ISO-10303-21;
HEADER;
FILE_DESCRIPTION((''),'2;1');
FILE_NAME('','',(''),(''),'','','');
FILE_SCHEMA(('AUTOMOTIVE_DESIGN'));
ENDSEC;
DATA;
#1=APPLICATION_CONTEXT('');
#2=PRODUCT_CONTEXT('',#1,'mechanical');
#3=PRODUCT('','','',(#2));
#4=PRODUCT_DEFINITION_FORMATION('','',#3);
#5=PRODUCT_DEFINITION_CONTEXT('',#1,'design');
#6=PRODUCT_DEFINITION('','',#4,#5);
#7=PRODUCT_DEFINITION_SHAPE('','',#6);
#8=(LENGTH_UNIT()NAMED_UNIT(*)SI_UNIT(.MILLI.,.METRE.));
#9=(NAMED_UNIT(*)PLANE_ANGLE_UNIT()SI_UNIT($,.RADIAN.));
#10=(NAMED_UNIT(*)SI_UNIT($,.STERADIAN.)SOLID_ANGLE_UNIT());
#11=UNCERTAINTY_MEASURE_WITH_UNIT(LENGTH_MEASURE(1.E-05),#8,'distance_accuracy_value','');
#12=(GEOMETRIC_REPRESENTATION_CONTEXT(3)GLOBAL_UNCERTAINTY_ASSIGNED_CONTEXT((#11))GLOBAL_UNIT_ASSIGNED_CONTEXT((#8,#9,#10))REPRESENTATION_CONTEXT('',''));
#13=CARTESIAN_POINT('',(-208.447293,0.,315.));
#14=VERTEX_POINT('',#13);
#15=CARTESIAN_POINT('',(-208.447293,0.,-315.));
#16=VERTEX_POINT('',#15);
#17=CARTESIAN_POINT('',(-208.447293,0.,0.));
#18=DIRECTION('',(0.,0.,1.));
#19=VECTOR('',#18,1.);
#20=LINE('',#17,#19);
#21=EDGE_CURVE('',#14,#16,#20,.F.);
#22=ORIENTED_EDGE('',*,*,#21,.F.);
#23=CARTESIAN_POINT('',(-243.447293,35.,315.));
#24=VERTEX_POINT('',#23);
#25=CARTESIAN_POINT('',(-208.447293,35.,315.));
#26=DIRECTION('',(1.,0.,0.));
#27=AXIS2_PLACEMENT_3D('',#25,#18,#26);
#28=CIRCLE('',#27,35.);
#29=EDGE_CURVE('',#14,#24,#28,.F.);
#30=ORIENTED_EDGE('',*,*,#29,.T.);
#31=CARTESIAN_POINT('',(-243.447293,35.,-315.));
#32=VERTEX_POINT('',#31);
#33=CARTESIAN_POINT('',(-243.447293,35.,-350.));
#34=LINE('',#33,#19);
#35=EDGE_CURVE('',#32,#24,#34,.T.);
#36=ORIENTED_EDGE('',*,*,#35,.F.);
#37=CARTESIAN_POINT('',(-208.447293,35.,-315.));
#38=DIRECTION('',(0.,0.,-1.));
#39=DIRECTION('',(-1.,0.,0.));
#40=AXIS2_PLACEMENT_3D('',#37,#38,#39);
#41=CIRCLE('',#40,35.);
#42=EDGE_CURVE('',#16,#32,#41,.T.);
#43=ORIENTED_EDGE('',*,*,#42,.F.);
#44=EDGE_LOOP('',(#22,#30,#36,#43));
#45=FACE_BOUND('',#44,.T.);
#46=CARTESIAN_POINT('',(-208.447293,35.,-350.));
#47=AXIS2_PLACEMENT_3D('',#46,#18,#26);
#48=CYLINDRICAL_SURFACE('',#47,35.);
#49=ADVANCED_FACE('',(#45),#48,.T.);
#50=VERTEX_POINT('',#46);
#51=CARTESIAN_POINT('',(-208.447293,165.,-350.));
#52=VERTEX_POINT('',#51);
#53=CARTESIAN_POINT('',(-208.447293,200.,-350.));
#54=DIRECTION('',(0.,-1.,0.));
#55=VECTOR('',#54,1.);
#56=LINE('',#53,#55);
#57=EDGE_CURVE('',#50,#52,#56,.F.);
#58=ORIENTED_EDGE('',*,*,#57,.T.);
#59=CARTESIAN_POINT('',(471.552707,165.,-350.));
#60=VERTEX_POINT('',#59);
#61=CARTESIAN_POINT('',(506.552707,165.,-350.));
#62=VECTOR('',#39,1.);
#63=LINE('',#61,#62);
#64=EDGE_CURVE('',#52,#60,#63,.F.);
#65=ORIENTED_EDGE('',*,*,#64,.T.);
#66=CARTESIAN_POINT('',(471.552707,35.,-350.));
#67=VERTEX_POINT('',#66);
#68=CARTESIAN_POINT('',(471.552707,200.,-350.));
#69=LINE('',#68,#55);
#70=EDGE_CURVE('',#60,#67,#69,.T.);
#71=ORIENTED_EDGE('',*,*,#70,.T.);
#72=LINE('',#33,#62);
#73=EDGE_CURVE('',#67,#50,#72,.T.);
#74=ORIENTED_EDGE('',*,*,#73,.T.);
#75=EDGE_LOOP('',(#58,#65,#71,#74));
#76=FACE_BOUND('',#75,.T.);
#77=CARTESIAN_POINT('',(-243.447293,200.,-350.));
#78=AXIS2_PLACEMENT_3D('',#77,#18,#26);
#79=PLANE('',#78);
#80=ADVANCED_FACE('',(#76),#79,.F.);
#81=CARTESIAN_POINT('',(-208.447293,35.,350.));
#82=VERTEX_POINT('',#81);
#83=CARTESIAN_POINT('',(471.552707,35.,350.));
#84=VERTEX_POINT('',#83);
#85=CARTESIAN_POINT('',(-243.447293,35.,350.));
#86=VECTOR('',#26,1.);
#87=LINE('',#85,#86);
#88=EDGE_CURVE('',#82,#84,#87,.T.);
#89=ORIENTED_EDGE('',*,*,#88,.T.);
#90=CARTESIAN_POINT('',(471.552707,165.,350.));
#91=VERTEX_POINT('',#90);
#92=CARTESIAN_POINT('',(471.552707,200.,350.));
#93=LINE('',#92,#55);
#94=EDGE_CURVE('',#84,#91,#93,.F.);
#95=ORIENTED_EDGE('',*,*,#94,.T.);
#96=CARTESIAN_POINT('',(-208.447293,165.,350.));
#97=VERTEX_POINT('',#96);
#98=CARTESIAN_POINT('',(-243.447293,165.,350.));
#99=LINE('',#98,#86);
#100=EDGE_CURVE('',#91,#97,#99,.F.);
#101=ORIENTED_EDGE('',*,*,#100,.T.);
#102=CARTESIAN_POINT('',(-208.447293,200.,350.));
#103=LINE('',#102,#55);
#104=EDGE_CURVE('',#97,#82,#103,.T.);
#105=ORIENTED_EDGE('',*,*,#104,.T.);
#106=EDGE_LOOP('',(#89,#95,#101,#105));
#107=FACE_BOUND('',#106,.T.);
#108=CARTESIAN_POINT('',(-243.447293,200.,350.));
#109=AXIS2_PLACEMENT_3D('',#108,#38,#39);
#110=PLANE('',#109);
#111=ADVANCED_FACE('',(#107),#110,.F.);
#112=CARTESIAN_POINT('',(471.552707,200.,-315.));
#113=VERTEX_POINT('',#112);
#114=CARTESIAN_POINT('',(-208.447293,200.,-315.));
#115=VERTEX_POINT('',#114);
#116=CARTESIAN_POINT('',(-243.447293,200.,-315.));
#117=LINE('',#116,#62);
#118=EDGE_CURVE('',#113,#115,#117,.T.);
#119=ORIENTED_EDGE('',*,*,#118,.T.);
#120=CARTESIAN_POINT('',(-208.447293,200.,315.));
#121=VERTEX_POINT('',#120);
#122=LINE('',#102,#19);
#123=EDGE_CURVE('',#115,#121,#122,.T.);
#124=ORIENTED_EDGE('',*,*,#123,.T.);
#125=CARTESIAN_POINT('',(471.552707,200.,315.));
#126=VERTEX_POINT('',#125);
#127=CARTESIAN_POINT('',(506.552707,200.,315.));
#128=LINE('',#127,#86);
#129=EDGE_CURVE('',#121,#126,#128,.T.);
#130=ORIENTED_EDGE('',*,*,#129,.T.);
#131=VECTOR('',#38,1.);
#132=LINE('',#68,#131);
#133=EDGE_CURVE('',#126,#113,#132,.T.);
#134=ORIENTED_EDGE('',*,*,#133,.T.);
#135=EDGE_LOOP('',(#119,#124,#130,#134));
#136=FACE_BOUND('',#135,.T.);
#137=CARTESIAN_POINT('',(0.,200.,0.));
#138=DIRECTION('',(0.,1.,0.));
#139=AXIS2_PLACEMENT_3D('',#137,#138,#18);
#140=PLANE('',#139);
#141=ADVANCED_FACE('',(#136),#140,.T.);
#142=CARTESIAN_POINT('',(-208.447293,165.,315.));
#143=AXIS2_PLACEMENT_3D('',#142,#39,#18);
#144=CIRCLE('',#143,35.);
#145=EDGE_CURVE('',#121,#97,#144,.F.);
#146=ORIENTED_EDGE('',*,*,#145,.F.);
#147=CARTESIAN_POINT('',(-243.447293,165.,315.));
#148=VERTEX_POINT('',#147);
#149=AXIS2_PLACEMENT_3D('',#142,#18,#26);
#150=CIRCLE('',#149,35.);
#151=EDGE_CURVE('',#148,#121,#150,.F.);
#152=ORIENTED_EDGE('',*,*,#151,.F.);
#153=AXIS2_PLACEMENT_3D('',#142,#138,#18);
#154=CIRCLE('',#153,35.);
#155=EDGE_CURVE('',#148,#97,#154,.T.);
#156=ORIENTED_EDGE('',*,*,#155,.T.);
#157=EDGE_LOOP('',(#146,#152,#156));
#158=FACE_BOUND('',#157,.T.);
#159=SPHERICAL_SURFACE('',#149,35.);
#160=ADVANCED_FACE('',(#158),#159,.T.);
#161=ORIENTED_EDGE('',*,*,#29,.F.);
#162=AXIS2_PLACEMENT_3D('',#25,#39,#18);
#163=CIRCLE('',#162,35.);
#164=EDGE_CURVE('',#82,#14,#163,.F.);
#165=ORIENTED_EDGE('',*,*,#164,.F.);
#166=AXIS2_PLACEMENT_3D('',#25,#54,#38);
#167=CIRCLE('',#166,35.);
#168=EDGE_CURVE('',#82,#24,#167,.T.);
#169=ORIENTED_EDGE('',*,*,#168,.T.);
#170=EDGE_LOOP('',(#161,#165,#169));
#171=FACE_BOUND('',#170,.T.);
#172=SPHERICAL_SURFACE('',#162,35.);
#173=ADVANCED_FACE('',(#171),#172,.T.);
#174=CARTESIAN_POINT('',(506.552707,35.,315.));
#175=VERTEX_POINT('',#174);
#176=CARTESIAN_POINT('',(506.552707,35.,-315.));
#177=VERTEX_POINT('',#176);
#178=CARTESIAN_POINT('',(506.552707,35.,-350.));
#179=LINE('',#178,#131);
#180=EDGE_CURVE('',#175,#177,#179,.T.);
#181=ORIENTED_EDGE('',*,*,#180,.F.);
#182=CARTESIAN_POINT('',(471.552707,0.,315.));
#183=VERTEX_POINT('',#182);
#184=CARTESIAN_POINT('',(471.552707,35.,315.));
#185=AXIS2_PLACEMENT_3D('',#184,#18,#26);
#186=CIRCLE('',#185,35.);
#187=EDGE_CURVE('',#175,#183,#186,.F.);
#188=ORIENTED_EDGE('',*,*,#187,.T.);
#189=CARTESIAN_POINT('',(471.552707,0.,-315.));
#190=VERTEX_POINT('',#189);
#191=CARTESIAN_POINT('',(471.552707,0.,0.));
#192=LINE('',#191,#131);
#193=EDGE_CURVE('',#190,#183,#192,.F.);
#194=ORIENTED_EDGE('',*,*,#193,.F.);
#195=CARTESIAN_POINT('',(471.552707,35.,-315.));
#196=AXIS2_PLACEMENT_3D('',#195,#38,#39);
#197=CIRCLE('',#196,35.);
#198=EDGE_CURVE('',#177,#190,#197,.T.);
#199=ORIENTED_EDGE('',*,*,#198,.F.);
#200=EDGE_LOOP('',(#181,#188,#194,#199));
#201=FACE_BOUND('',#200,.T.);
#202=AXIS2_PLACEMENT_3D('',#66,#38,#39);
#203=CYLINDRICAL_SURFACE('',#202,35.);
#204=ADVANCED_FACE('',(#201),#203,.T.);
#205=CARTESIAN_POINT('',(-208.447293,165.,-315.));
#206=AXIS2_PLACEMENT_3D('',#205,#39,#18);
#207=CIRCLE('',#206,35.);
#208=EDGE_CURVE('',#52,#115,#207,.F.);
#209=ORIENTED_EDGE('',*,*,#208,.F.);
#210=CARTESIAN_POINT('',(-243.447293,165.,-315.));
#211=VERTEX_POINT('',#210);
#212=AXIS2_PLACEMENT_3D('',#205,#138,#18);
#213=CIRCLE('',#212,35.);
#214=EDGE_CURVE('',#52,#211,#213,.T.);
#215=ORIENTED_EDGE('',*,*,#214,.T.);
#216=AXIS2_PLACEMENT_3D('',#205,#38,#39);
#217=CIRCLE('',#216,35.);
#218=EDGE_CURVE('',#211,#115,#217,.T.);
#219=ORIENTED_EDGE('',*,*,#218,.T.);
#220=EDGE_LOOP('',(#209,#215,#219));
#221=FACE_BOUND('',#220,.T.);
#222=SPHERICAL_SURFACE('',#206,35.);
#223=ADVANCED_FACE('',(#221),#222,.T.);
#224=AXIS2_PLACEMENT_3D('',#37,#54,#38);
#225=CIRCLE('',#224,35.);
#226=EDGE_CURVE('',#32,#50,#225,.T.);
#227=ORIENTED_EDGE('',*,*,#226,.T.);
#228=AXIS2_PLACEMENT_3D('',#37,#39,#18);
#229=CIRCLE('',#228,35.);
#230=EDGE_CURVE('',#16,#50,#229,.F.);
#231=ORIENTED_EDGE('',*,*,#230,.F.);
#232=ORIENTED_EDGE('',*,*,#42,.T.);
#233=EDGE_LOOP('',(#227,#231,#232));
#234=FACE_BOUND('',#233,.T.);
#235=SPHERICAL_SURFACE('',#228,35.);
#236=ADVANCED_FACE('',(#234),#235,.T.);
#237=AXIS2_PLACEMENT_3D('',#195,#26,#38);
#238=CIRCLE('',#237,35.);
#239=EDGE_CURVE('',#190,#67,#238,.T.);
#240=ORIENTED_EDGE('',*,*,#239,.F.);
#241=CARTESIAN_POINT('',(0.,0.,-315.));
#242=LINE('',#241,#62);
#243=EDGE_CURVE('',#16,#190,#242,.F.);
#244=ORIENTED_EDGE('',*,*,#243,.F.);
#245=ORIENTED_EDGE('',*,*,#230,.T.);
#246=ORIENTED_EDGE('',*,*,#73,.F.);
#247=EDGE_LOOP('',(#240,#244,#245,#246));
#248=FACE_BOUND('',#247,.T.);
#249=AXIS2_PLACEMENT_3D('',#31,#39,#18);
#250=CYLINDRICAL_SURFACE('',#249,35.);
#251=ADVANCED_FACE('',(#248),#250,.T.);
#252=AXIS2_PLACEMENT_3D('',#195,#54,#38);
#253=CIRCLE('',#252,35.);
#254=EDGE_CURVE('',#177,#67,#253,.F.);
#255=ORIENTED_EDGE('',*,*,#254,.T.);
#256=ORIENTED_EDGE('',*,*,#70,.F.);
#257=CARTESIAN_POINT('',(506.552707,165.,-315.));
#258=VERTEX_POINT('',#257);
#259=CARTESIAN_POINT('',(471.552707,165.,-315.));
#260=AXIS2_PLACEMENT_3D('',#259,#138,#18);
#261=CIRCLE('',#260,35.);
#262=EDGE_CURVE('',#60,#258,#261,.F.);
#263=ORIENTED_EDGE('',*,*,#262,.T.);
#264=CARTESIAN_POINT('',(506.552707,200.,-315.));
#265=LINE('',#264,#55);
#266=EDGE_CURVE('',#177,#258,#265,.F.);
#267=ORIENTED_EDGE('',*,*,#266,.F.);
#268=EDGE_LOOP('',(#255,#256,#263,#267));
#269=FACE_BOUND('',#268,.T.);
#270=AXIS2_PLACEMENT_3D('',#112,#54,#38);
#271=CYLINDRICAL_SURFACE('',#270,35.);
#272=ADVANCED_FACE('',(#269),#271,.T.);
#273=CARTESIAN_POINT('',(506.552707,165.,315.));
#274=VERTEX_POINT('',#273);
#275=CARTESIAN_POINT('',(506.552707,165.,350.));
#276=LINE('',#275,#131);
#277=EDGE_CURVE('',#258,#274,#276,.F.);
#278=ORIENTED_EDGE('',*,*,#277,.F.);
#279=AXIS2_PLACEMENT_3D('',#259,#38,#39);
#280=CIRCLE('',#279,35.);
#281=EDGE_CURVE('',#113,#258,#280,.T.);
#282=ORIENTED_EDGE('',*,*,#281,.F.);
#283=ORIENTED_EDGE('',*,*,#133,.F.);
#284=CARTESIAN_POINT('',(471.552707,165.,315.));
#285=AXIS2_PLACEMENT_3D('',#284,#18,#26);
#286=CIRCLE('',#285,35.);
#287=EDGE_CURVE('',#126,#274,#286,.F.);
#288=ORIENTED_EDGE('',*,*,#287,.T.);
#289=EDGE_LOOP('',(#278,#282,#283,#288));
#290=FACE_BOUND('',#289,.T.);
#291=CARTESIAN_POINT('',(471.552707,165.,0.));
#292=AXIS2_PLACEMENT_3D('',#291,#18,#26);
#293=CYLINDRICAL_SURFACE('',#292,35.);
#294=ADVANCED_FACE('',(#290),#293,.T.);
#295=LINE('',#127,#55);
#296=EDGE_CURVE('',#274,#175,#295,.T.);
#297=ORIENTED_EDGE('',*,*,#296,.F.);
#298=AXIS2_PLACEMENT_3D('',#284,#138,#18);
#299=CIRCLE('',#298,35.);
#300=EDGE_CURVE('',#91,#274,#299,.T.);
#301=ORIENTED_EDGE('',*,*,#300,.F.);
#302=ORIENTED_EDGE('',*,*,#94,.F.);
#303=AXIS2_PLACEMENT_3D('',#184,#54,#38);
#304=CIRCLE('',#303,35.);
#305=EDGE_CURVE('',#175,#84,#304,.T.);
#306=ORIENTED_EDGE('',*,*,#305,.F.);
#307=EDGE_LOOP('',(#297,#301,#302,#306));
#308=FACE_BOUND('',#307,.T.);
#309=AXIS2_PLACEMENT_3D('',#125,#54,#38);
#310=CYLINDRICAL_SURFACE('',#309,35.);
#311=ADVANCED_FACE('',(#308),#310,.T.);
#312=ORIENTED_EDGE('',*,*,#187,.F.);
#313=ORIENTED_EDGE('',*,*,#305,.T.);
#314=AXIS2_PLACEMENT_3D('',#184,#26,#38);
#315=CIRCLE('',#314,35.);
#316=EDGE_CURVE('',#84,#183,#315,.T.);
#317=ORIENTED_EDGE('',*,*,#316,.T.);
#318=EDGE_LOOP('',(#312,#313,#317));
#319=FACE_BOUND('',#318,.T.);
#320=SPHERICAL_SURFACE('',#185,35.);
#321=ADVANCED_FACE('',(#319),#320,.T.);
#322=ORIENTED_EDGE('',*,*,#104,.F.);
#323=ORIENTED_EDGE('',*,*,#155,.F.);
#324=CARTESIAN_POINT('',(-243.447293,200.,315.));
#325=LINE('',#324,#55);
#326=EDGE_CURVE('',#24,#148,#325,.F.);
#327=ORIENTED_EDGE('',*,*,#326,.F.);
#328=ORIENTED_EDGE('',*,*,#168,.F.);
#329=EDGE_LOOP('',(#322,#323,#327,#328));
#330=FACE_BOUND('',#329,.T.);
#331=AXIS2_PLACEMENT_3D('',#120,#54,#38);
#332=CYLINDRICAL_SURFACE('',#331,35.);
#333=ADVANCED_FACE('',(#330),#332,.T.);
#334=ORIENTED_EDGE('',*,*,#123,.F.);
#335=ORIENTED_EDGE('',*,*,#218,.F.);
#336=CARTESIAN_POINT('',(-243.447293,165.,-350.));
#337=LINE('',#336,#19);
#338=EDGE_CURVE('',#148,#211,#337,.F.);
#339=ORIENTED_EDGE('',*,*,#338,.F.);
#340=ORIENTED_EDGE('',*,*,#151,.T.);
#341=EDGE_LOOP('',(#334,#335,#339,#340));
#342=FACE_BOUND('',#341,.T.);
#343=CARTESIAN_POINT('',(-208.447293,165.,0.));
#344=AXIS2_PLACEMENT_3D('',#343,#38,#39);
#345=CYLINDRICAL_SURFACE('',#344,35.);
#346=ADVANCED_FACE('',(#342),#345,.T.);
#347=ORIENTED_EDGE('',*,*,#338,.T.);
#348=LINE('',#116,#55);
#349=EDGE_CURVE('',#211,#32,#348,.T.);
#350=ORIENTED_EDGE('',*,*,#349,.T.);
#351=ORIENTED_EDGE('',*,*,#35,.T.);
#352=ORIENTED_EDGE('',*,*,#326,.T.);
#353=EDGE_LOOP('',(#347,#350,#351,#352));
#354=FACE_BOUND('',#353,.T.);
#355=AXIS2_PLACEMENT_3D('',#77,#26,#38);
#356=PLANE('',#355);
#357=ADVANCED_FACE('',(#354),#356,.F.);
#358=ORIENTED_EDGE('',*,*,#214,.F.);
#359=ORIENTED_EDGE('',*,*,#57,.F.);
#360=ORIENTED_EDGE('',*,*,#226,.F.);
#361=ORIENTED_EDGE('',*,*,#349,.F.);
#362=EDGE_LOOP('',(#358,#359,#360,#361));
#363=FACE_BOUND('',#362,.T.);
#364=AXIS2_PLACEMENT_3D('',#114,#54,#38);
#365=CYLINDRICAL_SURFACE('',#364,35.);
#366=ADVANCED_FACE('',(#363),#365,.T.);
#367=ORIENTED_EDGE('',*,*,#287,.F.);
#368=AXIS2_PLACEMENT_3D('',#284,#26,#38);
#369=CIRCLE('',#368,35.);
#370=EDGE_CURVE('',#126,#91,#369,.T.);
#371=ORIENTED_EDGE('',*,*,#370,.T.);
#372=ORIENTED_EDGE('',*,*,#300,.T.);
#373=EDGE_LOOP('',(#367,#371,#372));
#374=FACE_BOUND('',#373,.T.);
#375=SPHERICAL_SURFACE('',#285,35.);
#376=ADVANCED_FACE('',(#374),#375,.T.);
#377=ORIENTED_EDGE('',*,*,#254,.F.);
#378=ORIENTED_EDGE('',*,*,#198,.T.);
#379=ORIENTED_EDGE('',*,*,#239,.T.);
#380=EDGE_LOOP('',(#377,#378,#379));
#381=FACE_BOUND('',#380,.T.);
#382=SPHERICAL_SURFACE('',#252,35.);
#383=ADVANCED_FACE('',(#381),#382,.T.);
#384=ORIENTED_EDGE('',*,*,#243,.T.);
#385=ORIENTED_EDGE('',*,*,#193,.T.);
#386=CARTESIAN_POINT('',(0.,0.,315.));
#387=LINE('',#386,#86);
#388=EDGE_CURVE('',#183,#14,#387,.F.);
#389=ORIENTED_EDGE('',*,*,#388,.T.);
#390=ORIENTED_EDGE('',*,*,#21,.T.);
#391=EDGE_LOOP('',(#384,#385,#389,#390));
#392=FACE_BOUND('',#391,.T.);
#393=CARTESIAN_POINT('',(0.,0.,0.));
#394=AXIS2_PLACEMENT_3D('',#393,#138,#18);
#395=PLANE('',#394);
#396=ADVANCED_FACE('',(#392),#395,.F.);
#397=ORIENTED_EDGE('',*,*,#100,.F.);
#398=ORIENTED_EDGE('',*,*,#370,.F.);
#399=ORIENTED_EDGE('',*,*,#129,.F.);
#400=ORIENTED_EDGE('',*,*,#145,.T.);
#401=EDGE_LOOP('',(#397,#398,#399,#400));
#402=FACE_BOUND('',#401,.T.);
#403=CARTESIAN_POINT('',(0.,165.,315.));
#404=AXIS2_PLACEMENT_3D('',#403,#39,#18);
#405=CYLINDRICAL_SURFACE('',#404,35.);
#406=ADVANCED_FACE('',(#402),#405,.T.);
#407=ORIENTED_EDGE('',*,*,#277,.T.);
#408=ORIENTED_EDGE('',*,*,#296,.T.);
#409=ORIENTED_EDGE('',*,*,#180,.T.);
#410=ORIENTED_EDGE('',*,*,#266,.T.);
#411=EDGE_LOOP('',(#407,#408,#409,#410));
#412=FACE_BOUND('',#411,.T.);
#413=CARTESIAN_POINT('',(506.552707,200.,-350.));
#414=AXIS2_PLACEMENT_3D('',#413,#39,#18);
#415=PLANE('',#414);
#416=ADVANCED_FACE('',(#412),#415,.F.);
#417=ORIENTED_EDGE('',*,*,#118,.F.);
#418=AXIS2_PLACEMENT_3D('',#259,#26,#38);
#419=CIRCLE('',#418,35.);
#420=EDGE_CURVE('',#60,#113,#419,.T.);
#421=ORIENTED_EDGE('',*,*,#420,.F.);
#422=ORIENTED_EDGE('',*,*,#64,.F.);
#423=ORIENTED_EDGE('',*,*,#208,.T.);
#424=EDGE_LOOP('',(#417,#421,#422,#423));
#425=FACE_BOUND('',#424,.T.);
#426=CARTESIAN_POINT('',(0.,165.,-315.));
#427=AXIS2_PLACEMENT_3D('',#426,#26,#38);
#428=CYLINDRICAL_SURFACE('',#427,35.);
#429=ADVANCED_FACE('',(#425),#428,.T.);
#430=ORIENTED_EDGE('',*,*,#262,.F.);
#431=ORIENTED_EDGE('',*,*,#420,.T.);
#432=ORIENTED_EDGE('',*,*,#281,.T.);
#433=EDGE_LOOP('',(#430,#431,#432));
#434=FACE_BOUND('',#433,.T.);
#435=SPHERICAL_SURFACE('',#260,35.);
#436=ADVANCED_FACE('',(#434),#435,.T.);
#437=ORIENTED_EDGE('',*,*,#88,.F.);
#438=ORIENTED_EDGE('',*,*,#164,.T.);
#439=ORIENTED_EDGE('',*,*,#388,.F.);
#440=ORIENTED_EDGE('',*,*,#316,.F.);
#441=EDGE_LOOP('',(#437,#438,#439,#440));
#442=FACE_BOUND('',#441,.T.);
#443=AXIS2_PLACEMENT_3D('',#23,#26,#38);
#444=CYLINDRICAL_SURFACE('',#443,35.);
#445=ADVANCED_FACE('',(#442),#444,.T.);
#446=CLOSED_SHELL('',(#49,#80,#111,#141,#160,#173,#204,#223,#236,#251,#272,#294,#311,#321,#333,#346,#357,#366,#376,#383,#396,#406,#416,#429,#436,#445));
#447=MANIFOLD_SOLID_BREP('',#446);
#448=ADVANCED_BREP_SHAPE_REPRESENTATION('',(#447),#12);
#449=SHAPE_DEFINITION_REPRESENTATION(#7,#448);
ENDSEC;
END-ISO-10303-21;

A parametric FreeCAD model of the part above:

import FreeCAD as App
import Part
import Sketcher
Q = App.Units.Quantity

doc = App.newDocument("Part")
body = doc.addObject("PartDesign::Body", "Body")

# Sketch on XZ plane
sketch1 = body.newObject("Sketcher::SketchObject", "Sketch")
sketch1.AttachmentSupport = (doc.getObject("XZ_Plane"), [""])
sketch1.MapMode = "FlatFace"
sketch1.addGeometry([
    Part.LineSegment(App.Vector(-243, -350, 0), App.Vector(-243, 350, 0)),
    Part.LineSegment(App.Vector(-243, 350, 0), App.Vector(507, 350, 0)),
    Part.LineSegment(App.Vector(507, 350, 0), App.Vector(507, -350, 0)),
    Part.LineSegment(App.Vector(507, -350, 0), App.Vector(-243, -350, 0)),
], False)
sketch1.addConstraint([
    Sketcher.Constraint("Coincident", 0, 2, 1, 1),
    Sketcher.Constraint("Coincident", 1, 2, 2, 1),
    Sketcher.Constraint("Coincident", 2, 2, 3, 1),
    Sketcher.Constraint("Coincident", 3, 2, 0, 1),
    Sketcher.Constraint("Vertical", 0),
    Sketcher.Constraint("Horizontal", 1),
    Sketcher.Constraint("Vertical", 2),
    Sketcher.Constraint("Horizontal", 3),
    Sketcher.Constraint("DistanceX", 1, 1, 1, 2, Q("750 mm")),
    Sketcher.Constraint("DistanceY", 0, 1, 0, 2, Q("700 mm")),
    Sketcher.Constraint("DistanceY", -1, 1, 0, 2, Q("350 mm")),
    Sketcher.Constraint("DistanceX", 0, 2, -1, 1, Q("243.447293 mm")),
])
pad1 = body.newObject("PartDesign::Pad", "Pad")
pad1.Profile = sketch1
pad1.Length = 200
pad1.Reversed = True
doc.recompute()

fillet = body.newObject("PartDesign::Fillet", "Fillet")
fillet.Base = (pad1, ["Edge1"])
fillet.UseAllEdges = True
fillet.Radius = 35

doc.recompute()
